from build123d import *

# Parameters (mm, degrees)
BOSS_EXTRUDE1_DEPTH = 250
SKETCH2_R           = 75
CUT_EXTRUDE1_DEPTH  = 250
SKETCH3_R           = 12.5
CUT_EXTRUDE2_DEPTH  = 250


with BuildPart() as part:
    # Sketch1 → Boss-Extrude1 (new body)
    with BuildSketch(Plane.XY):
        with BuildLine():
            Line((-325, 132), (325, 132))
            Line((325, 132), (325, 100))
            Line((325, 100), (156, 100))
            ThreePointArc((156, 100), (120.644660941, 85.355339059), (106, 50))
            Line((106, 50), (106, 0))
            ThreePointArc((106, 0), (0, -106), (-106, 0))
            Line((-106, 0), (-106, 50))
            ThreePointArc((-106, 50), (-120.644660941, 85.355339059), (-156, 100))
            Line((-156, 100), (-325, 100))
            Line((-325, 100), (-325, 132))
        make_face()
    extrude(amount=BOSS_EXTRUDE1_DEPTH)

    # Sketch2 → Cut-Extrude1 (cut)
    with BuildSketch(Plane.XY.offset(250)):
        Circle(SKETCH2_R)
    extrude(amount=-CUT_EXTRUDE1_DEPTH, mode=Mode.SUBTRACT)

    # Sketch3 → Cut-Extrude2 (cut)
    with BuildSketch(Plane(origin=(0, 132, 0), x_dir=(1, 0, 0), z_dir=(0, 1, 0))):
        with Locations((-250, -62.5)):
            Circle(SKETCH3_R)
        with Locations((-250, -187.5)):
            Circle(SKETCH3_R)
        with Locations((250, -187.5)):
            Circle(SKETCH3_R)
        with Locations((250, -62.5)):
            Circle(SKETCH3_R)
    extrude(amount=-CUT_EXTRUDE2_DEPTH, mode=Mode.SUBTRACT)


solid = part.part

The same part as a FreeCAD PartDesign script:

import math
import FreeCAD as App
import Part
import Sketcher

V = App.Vector

doc = App.newDocument("Part")
body = doc.addObject("PartDesign::Body", "Body")

# Sketch on XY plane
sketch1 = doc.addObject("Sketcher::SketchObject", "Sketch")
body.addObject(sketch1)
sketch1.AttachmentSupport = (doc.XY_Plane, [""])
sketch1.MapMode = "FlatFace"
sketch1.addGeometry([
    Part.LineSegment(V(325, 132, 0), V(-325, 132, 0)),  # 0
    Part.LineSegment(V(-325, 132, 0), V(-325, 100, 0)),  # 1
    Part.LineSegment(V(-325, 100, 0), V(-156, 100, 0)),  # 2
    Part.ArcOfCircle(Part.Circle(V(-156, 50, 0), V(0, 0, 1), 50), math.radians(0), math.radians(90)),  # 3
    Part.LineSegment(V(-106, 50, 0), V(-106, 0, 0)),  # 4
    Part.ArcOfCircle(Part.Circle(V(0, 0, 0), V(0, 0, 1), 106), math.radians(180), math.radians(360)),  # 5
    Part.LineSegment(V(106, 0, 0), V(106, 50, 0)),  # 6
    Part.ArcOfCircle(Part.Circle(V(156, 50, 0), V(0, 0, 1), 50), math.radians(90), math.radians(180)),  # 7
    Part.LineSegment(V(156, 100, 0), V(325, 100, 0)),  # 8
    Part.LineSegment(V(325, 100, 0), V(325, 132, 0)),  # 9
], False)
sketch1.addConstraint([
    Sketcher.Constraint("Coincident", 0, 2, 1, 1),
    Sketcher.Constraint("Coincident", 1, 2, 2, 1),
    Sketcher.Constraint("Tangent", 2, 2, 3, 2),
    Sketcher.Constraint("Tangent", 3, 1, 4, 1),
    Sketcher.Constraint("Tangent", 4, 2, 5, 1),
    Sketcher.Constraint("Tangent", 5, 2, 6, 1),
    Sketcher.Constraint("Tangent", 6, 2, 7, 2),
    Sketcher.Constraint("Tangent", 7, 1, 8, 1),
    Sketcher.Constraint("Coincident", 8, 2, 9, 1),
    Sketcher.Constraint("Coincident", 9, 2, 0, 1),
    Sketcher.Constraint("Horizontal", 0),
    Sketcher.Constraint("Vertical", 1),
    Sketcher.Constraint("Horizontal", 2),
    Sketcher.Constraint("Vertical", 4),
    Sketcher.Constraint("Vertical", 6),
    Sketcher.Constraint("Horizontal", 8),
    Sketcher.Constraint("Vertical", 9),
    Sketcher.Constraint("Coincident", 5, 3, -1, 1),
    Sketcher.Constraint("Equal", 3, 7),
    Sketcher.Constraint("Symmetric", 1, 2, 8, 2, -2),
    Sketcher.Constraint("Radius", 3, 50.0),
    Sketcher.Constraint("Radius", 5, 106.0),
    Sketcher.Constraint("DistanceX", 0, 2, 0, 1, 650.0),
    Sketcher.Constraint("DistanceY", 1, 2, 1, 1, 32.0),
    Sketcher.Constraint("DistanceY", 4, 2, 4, 1, 50.0),
])
pad1 = doc.addObject("PartDesign::Pad", "Pad")
body.addObject(pad1)
pad1.Profile = sketch1
pad1.Length = 250

# Sketch on XY plane
sketch2 = doc.addObject("Sketcher::SketchObject", "Sketch001")
body.addObject(sketch2)
sketch2.AttachmentSupport = (doc.XY_Plane, [""])
sketch2.MapMode = "FlatFace"
sketch2.AttachmentOffset = App.Placement(V(0, 0, 250), App.Rotation())
sketch2.addGeometry(Part.Circle(V(0, 0, 0), V(0, 0, 1), 75), False)
sketch2.addConstraint([
    Sketcher.Constraint("Coincident", 0, 3, -1, 1),
    Sketcher.Constraint("Diameter", 0, 150.0),
])
pocket1 = doc.addObject("PartDesign::Pocket", "Pocket")
body.addObject(pocket1)
pocket1.Profile = sketch2
pocket1.Length = 250

# Sketch on XZ plane
sketch3 = doc.addObject("Sketcher::SketchObject", "Sketch002")
body.addObject(sketch3)
sketch3.AttachmentSupport = (doc.XZ_Plane, [""])
sketch3.MapMode = "FlatFace"
sketch3.AttachmentOffset = App.Placement(V(0, 0, -132), App.Rotation())
sketch3.addGeometry([
    Part.Circle(V(-250, 62, 0), V(0, 0, 1), 12),
    Part.Circle(V(-250, 188, 0), V(0, 0, 1), 12),
    Part.Circle(V(250, 188, 0), V(0, 0, 1), 12),
    Part.Circle(V(250, 62, 0), V(0, 0, 1), 12),
], False)
sketch3.addConstraint([
    Sketcher.Constraint("Equal", 0, 1),
    Sketcher.Constraint("Equal", 1, 2),
    Sketcher.Constraint("Equal", 2, 3),
    Sketcher.Constraint("Symmetric", 1, 3, 2, 3, -2),
    Sketcher.Constraint("Symmetric", 0, 3, 3, 3, -2),
    Sketcher.Constraint("Vertical", 0, 3, 1, 3),
    Sketcher.Constraint("Diameter", 0, 25.0),
    Sketcher.Constraint("DistanceX", 0, 3, -1, 1, 250.0),
    Sketcher.Constraint("DistanceY", 0, 3, 1, 3, 125.0),
    Sketcher.Constraint("DistanceY", -1, 1, 0, 3, 62.5),
])
pocket2 = doc.addObject("PartDesign::Pocket", "Pocket001")
body.addObject(pocket2)
pocket2.Profile = sketch3
pocket2.Length = 250
pocket2.Reversed = True

doc.recompute()
